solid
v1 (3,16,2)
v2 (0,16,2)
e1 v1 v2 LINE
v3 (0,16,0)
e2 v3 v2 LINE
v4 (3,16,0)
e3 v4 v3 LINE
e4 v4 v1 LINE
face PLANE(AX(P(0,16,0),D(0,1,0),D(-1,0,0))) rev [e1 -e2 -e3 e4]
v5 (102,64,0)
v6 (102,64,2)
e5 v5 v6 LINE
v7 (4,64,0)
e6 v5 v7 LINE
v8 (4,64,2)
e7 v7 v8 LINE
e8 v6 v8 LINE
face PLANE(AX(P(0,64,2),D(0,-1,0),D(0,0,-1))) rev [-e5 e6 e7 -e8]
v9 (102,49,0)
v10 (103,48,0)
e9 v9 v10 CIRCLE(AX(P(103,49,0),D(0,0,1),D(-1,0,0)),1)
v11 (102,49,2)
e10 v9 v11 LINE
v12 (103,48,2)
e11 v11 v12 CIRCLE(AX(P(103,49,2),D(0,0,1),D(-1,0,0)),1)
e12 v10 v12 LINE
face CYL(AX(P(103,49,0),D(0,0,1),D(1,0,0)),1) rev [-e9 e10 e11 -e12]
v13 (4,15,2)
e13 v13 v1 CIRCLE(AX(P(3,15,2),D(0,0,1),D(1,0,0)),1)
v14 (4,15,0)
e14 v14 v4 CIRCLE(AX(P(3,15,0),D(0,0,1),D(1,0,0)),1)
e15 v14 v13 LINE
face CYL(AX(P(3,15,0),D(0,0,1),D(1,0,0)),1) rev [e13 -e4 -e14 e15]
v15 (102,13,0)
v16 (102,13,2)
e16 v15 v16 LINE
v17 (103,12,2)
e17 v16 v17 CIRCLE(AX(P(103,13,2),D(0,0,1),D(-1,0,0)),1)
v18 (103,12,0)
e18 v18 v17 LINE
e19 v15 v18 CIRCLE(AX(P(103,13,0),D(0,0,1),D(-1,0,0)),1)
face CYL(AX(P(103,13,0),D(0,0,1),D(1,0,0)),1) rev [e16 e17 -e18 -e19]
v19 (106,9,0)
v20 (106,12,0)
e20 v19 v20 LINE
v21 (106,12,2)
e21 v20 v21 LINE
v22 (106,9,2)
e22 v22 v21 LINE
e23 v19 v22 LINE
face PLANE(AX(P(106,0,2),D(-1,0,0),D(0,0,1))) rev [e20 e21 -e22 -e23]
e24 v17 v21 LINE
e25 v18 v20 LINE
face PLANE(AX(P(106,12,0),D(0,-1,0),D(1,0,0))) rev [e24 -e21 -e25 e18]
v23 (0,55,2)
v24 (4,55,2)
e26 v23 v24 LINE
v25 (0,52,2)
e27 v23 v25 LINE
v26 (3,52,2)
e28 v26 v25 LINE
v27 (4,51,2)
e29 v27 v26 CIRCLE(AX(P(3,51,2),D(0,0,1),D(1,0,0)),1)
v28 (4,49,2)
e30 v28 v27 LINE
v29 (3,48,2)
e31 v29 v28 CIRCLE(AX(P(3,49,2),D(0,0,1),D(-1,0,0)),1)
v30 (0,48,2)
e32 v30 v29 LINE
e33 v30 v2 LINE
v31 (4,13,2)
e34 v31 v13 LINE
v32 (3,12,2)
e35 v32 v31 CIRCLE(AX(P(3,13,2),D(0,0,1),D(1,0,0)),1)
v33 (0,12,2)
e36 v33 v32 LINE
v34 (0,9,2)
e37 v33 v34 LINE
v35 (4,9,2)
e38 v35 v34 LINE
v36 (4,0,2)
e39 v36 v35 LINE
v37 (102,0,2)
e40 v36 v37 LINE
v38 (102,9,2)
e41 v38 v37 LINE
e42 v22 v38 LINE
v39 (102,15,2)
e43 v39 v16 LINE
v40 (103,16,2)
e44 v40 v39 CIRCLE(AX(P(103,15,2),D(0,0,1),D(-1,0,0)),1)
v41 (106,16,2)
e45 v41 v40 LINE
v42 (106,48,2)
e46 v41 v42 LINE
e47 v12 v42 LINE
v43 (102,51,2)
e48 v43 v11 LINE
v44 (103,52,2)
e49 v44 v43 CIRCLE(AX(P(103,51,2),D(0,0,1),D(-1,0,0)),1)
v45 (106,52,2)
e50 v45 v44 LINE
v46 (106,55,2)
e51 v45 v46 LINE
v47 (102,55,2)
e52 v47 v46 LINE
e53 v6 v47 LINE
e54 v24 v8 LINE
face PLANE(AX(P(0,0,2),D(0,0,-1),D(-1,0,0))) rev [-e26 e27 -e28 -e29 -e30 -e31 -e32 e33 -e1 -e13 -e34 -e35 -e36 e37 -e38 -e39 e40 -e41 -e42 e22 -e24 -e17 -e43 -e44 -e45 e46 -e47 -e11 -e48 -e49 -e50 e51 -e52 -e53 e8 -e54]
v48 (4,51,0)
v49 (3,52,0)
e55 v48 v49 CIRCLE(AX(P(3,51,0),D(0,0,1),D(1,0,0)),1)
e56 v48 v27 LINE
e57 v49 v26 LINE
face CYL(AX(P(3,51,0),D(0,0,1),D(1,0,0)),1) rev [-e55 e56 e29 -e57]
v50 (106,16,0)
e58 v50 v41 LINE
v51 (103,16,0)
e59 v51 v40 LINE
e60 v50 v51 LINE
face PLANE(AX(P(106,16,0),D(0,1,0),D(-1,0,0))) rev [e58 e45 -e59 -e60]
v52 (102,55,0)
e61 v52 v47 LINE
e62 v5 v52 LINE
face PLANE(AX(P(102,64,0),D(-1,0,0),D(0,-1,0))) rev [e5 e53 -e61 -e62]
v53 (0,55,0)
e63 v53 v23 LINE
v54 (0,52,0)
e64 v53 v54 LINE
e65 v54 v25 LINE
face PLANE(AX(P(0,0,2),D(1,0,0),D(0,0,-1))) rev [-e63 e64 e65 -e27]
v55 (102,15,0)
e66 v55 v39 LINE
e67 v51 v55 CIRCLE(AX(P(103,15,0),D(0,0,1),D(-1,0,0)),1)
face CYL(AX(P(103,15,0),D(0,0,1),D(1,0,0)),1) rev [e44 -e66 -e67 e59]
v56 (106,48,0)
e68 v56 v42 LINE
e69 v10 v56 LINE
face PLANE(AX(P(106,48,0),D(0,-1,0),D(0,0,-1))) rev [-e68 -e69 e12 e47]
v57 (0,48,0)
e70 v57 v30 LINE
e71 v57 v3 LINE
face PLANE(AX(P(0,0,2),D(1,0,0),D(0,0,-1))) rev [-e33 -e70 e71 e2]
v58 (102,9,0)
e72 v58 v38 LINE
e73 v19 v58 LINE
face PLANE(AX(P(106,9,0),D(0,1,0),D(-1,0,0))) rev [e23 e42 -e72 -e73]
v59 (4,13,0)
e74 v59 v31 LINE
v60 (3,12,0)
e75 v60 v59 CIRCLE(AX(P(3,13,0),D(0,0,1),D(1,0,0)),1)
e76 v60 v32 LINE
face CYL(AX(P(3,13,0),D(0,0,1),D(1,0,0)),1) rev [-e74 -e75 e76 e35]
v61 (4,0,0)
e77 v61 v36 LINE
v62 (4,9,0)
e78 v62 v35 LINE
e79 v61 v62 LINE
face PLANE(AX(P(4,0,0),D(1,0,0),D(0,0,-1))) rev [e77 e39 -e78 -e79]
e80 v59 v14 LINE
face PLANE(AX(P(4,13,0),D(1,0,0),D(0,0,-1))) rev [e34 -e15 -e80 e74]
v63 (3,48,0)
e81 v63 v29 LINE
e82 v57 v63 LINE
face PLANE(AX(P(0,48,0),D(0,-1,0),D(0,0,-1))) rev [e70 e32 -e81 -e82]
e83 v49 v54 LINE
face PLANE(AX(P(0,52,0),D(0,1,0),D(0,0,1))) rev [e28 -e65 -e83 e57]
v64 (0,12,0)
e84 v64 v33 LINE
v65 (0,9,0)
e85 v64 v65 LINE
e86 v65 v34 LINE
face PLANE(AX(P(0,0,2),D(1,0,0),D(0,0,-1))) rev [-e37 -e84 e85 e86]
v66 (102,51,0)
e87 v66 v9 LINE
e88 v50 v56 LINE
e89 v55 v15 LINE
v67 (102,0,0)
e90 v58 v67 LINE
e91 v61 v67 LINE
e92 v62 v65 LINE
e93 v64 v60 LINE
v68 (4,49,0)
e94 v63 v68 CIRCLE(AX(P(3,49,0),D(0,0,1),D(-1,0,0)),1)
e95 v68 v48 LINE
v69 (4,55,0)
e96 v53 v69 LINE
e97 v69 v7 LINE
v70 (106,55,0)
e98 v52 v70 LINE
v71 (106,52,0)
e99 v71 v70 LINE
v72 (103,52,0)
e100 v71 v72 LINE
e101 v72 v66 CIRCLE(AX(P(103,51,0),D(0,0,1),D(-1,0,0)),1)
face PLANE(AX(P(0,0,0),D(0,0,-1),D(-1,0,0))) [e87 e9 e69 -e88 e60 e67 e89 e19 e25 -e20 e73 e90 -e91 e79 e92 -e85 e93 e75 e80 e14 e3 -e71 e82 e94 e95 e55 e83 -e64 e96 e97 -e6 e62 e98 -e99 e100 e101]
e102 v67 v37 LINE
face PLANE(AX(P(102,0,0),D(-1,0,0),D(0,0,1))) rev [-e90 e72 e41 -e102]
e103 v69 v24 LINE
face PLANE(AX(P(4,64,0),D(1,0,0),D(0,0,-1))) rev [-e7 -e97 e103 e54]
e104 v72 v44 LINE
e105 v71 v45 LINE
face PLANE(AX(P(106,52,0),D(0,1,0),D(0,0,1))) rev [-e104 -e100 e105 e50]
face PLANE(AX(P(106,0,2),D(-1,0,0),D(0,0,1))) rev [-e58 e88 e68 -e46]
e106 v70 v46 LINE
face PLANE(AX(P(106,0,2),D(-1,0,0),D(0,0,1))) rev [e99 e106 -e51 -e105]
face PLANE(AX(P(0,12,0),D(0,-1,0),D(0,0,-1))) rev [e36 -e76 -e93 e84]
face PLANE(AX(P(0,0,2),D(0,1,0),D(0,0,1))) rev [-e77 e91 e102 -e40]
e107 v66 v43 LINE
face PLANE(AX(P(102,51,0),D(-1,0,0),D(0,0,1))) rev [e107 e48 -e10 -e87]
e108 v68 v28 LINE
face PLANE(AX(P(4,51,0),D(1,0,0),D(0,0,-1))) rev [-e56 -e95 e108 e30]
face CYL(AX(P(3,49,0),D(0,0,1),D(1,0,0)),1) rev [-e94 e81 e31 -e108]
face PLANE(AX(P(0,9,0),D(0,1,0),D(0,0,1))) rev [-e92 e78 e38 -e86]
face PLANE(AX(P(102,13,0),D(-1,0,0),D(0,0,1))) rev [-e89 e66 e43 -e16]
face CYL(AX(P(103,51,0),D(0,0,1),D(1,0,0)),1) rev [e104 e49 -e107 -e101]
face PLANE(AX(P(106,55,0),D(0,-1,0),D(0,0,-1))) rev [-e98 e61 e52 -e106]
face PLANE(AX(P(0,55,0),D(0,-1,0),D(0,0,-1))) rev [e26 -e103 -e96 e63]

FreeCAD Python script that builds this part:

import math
import FreeCAD as App
import Part
import Sketcher


def add_polygon(sketch, points):
    """Adds a closed chain of lines whose ends are joined by coincident constraints."""
    first, n = sketch.GeometryCount, len(points)
    for a, b in zip(points, points[1:] + points[:1]):
        sketch.addGeometry(Part.LineSegment(App.Vector(*a, 0), App.Vector(*b, 0)), False)
    for i in range(n):
        sketch.addConstraint(Sketcher.Constraint("Coincident", first + i, 2, first + (i + 1) % n, 1))

doc = App.newDocument("Part")
body = doc.addObject("PartDesign::Body", "Body")

sketch1 = body.newObject("Sketcher::SketchObject", "Sketch")
sketch1.AttachmentSupport = (doc.getObject("XY_Plane"), [""])
sketch1.MapMode = "FlatFace"
add_polygon(sketch1, [(0, 64), (0, 0), (106, 0), (106, 64)])
sketch1.addConstraint(Sketcher.Constraint("Vertical", 0))
sketch1.addConstraint(Sketcher.Constraint("Horizontal", 1))
sketch1.addConstraint(Sketcher.Constraint("Vertical", 2))
sketch1.addConstraint(Sketcher.Constraint("Horizontal", 3))
sketch1.addConstraint(Sketcher.Constraint("Coincident", 0, 2, -1, 1))
sketch1.addConstraint(Sketcher.Constraint("DistanceX", 1, 1, 1, 2, 106.0))
sketch1.addConstraint(Sketcher.Constraint("DistanceY", 0, 2, 0, 1, 64.0))
pad1 = body.newObject("PartDesign::Pad", "Pad")
pad1.Profile = sketch1
pad1.Length = 2

sketch2 = body.newObject("Sketcher::SketchObject", "Sketch001")
sketch2.AttachmentSupport = (doc.getObject("XY_Plane"), [""])
sketch2.MapMode = "FlatFace"
sketch2.AttachmentOffset = App.Placement(App.Vector(0, 0, 2), App.Rotation())
add_polygon(sketch2, [(0, 64), (0, 55), (4, 55), (4, 64)])
add_polygon(sketch2, [(0, 9), (0, 0), (4, 0), (4, 9)])
add_polygon(sketch2, [(102, 9), (102, 0), (106, 0), (106, 9)])
add_polygon(sketch2, [(102, 64), (102, 55), (106, 55), (106, 64)])
sketch2.addConstraint(Sketcher.Constraint("Vertical", 0))
sketch2.addConstraint(Sketcher.Constraint("Horizontal", 1))
sketch2.addConstraint(Sketcher.Constraint("Vertical", 2))
sketch2.addConstraint(Sketcher.Constraint("Horizontal", 3))
sketch2.addConstraint(Sketcher.Constraint("Vertical", 4))
sketch2.addConstraint(Sketcher.Constraint("Horizontal", 5))
sketch2.addConstraint(Sketcher.Constraint("Vertical", 6))
sketch2.addConstraint(Sketcher.Constraint("Horizontal", 7))
sketch2.addConstraint(Sketcher.Constraint("Vertical", 8))
sketch2.addConstraint(Sketcher.Constraint("Horizontal", 9))
sketch2.addConstraint(Sketcher.Constraint("Vertical", 10))
sketch2.addConstraint(Sketcher.Constraint("Horizontal", 11))
sketch2.addConstraint(Sketcher.Constraint("Vertical", 12))
sketch2.addConstraint(Sketcher.Constraint("Horizontal", 13))
sketch2.addConstraint(Sketcher.Constraint("Vertical", 14))
sketch2.addConstraint(Sketcher.Constraint("Horizontal", 15))
sketch2.addConstraint(Sketcher.Constraint("Coincident", 4, 2, -1, 1))
sketch2.addConstraint(Sketcher.Constraint("PointOnObject", 0, 2, -2))
sketch2.addConstraint(Sketcher.Constraint("PointOnObject", 8, 2, -1))
sketch2.addConstraint(Sketcher.Constraint("Horizontal", 7, 2, 10, 2))
sketch2.addConstraint(Sketcher.Constraint("Horizontal", 1, 2, 12, 2))
sketch2.addConstraint(Sketcher.Constraint("Horizontal", 3, 2, 14, 2))
sketch2.addConstraint(Sketcher.Constraint("Vertical", 2, 2, 5, 2))
sketch2.addConstraint(Sketcher.Constraint("Vertical", 11, 2, 12, 2))
sketch2.addConstraint(Sketcher.Constraint("Vertical", 10, 2, 13, 2))
sketch2.addConstraint(Sketcher.Constraint("Equal", 7, 9))
sketch2.addConstraint(Sketcher.Constraint("Equal", 2, 4))
sketch2.addConstraint(Sketcher.Constraint("DistanceX", 1, 1, 1, 2, 4.0))
sketch2.addConstraint(Sketcher.Constraint("DistanceY", 0, 2, 0, 1, 9.0))
sketch2.addConstraint(Sketcher.Constraint("DistanceY", -1, 1, 0, 2, 55.0))
sketch2.addConstraint(Sketcher.Constraint("DistanceX", -1, 1, 8, 2, 102.0))
pocket1 = body.newObject("PartDesign::Pocket", "Pocket")
pocket1.Profile = sketch2
pocket1.Type = "ThroughAll"

sketch3 = body.newObject("Sketcher::SketchObject", "Sketch002")
sketch3.AttachmentSupport = (doc.getObject("XY_Plane"), [""])
sketch3.MapMode = "FlatFace"
sketch3.AttachmentOffset = App.Placement(App.Vector(0, 0, 2), App.Rotation())
sketch3.addGeometry(Part.LineSegment(App.Vector(103, 12, 0), App.Vector(106, 12, 0)), False)
sketch3.addGeometry(Part.LineSegment(App.Vector(106, 12, 0), App.Vector(106, 16, 0)), False)
sketch3.addGeometry(Part.LineSegment(App.Vector(106, 16, 0), App.Vector(103, 16, 0)), False)
sketch3.addGeometry(Part.ArcOfCircle(Part.Circle(App.Vector(103, 15, 0), App.Vector(0, 0, 1), 1), math.radians(90), math.radians(180)), False)
sketch3.addGeometry(Part.LineSegment(App.Vector(102, 15, 0), App.Vector(102, 13, 0)), False)
sketch3.addGeometry(Part.ArcOfCircle(Part.Circle(App.Vector(103, 13, 0), App.Vector(0, 0, 1), 1), math.radians(-180), math.radians(-90)), False)
sketch3.addGeometry(Part.LineSegment(App.Vector(0, 12, 0), App.Vector(3, 12, 0)), False)
sketch3.addGeometry(Part.ArcOfCircle(Part.Circle(App.Vector(3, 13, 0), App.Vector(0, 0, 1), 1), math.radians(-90), math.radians(0)), False)
sketch3.addGeometry(Part.LineSegment(App.Vector(4, 13, 0), App.Vector(4, 15, 0)), False)
sketch3.addGeometry(Part.ArcOfCircle(Part.Circle(App.Vector(3, 15, 0), App.Vector(0, 0, 1), 1), math.radians(0), math.radians(90)), False)
sketch3.addGeometry(Part.LineSegment(App.Vector(3, 16, 0), App.Vector(0, 16, 0)), False)
sketch3.addGeometry(Part.LineSegment(App.Vector(0, 16, 0), App.Vector(0, 12, 0)), False)
sketch3.addGeometry(Part.LineSegment(App.Vector(3, 52, 0), App.Vector(0, 52, 0)), False)
sketch3.addGeometry(Part.LineSegment(App.Vector(0, 52, 0), App.Vector(0, 48, 0)), False)
sketch3.addGeometry(Part.LineSegment(App.Vector(0, 48, 0), App.Vector(3, 48, 0)), False)
sketch3.addGeometry(Part.ArcOfCircle(Part.Circle(App.Vector(3, 49, 0), App.Vector(0, 0, 1), 1), math.radians(-90), math.radians(0)), False)
sketch3.addGeometry(Part.LineSegment(App.Vector(4, 49, 0), App.Vector(4, 51, 0)), False)
sketch3.addGeometry(Part.ArcOfCircle(Part.Circle(App.Vector(3, 51, 0), App.Vector(0, 0, 1), 1), math.radians(0), math.radians(90)), False)
sketch3.addGeometry(Part.LineSegment(App.Vector(106, 52, 0), App.Vector(103, 52, 0)), False)
sketch3.addGeometry(Part.ArcOfCircle(Part.Circle(App.Vector(103, 51, 0), App.Vector(0, 0, 1), 1), math.radians(90), math.radians(180)), False)
sketch3.addGeometry(Part.LineSegment(App.Vector(102, 51, 0), App.Vector(102, 49, 0)), False)
sketch3.addGeometry(Part.ArcOfCircle(Part.Circle(App.Vector(103, 49, 0), App.Vector(0, 0, 1), 1), math.radians(-180), math.radians(-90)), False)
sketch3.addGeometry(Part.LineSegment(App.Vector(103, 48, 0), App.Vector(106, 48, 0)), False)
sketch3.addGeometry(Part.LineSegment(App.Vector(106, 48, 0), App.Vector(106, 52, 0)), False)
sketch3.addConstraint(Sketcher.Constraint("Coincident", 0, 2, 1, 1))
sketch3.addConstraint(Sketcher.Constraint("Coincident", 1, 2, 2, 1))
sketch3.addConstraint(Sketcher.Constraint("Tangent", 2, 2, 3, 1))
sketch3.addConstraint(Sketcher.Constraint("Tangent", 3, 2, 4, 1))
sketch3.addConstraint(Sketcher.Constraint("Tangent", 4, 2, 5, 1))
sketch3.addConstraint(Sketcher.Constraint("Tangent", 5, 2, 0, 1))
sketch3.addConstraint(Sketcher.Constraint("Tangent", 6, 2, 7, 1))
sketch3.addConstraint(Sketcher.Constraint("Tangent", 7, 2, 8, 1))
sketch3.addConstraint(Sketcher.Constraint("Tangent", 8, 2, 9, 1))
sketch3.addConstraint(Sketcher.Constraint("Tangent", 9, 2, 10, 1))
sketch3.addConstraint(Sketcher.Constraint("Coincident", 10, 2, 11, 1))
sketch3.addConstraint(Sketcher.Constraint("Coincident", 11, 2, 6, 1))
sketch3.addConstraint(Sketcher.Constraint("Coincident", 12, 2, 13, 1))
sketch3.addConstraint(Sketcher.Constraint("Coincident", 13, 2, 14, 1))
sketch3.addConstraint(Sketcher.Constraint("Tangent", 14, 2, 15, 1))
sketch3.addConstraint(Sketcher.Constraint("Tangent", 15, 2, 16, 1))
sketch3.addConstraint(Sketcher.Constraint("Tangent", 16, 2, 17, 1))
sketch3.addConstraint(Sketcher.Constraint("Tangent", 17, 2, 12, 1))
sketch3.addConstraint(Sketcher.Constraint("Tangent", 18, 2, 19, 1))
sketch3.addConstraint(Sketcher.Constraint("Tangent", 19, 2, 20, 1))
sketch3.addConstraint(Sketcher.Constraint("Tangent", 20, 2, 21, 1))
sketch3.addConstraint(Sketcher.Constraint("Tangent", 21, 2, 22, 1))
sketch3.addConstraint(Sketcher.Constraint("Coincident", 22, 2, 23, 1))
sketch3.addConstraint(Sketcher.Constraint("Coincident", 23, 2, 18, 1))
sketch3.addConstraint(Sketcher.Constraint("Horizontal", 0))
sketch3.addConstraint(Sketcher.Constraint("Vertical", 1))
sketch3.addConstraint(Sketcher.Constraint("Horizontal", 2))
sketch3.addConstraint(Sketcher.Constraint("Vertical", 4))
sketch3.addConstraint(Sketcher.Constraint("Horizontal", 6))
sketch3.addConstraint(Sketcher.Constraint("Vertical", 8))
sketch3.addConstraint(Sketcher.Constraint("Horizontal", 10))
sketch3.addConstraint(Sketcher.Constraint("Vertical", 11))
sketch3.addConstraint(Sketcher.Constraint("Horizontal", 12))
sketch3.addConstraint(Sketcher.Constraint("Vertical", 13))
sketch3.addConstraint(Sketcher.Constraint("Horizontal", 14))
sketch3.addConstraint(Sketcher.Constraint("Vertical", 16))
sketch3.addConstraint(Sketcher.Constraint("Horizontal", 18))
sketch3.addConstraint(Sketcher.Constraint("Vertical", 20))
sketch3.addConstraint(Sketcher.Constraint("Horizontal", 22))
sketch3.addConstraint(Sketcher.Constraint("Vertical", 23))
sketch3.addConstraint(Sketcher.Constraint("Equal", 3, 5))
sketch3.addConstraint(Sketcher.Constraint("Equal", 5, 7))
sketch3.addConstraint(Sketcher.Constraint("Equal", 7, 9))
sketch3.addConstraint(Sketcher.Constraint("Equal", 9, 15))
sketch3.addConstraint(Sketcher.Constraint("Equal", 15, 17))
sketch3.addConstraint(Sketcher.Constraint("Equal", 17, 19))
sketch3.addConstraint(Sketcher.Constraint("Equal", 19, 21))
sketch3.addConstraint(Sketcher.Constraint("PointOnObject", 10, 2, -2))
sketch3.addConstraint(Sketcher.Constraint("PointOnObject", 12, 2, -2))
sketch3.addConstraint(Sketcher.Constraint("Horizontal", 5, 3, 7, 3))
sketch3.addConstraint(Sketcher.Constraint("Horizontal", 3, 3, 9, 3))
sketch3.addConstraint(Sketcher.Constraint("Horizontal", 17, 3, 19, 3))
sketch3.addConstraint(Sketcher.Constraint("Horizontal", 15, 3, 21, 3))
sketch3.addConstraint(Sketcher.Constraint("Vertical", 9, 3, 15, 3))
sketch3.addConstraint(Sketcher.Constraint("Vertical", 5, 3, 19, 3))
sketch3.addConstraint(Sketcher.Constraint("Vertical", 1, 2, 22, 2))
sketch3.addConstraint(Sketcher.Constraint("Equal", 2, 6))
sketch3.addConstraint(Sketcher.Constraint("Equal", 11, 13))
sketch3.addConstraint(Sketcher.Constraint("Radius", 3, 1.0))
sketch3.addConstraint(Sketcher.Constraint("DistanceX", 0, 1, 0, 2, 3.0))
sketch3.addConstraint(Sketcher.Constraint("DistanceY", 1, 1, 1, 2, 4.0))
sketch3.addConstraint(Sketcher.Constraint("DistanceX", -1, 1, 3, 3, 103.0))
sketch3.addConstraint(Sketcher.Constraint("DistanceY", -1, 1, 3, 3, 15.0))
sketch3.addConstraint(Sketcher.Constraint("DistanceY", -1, 1, 15, 3, 49.0))
pocket2 = body.newObject("PartDesign::Pocket", "Pocket001")
pocket2.Profile = sketch3
pocket2.Type = "ThroughAll"

doc.recompute()
